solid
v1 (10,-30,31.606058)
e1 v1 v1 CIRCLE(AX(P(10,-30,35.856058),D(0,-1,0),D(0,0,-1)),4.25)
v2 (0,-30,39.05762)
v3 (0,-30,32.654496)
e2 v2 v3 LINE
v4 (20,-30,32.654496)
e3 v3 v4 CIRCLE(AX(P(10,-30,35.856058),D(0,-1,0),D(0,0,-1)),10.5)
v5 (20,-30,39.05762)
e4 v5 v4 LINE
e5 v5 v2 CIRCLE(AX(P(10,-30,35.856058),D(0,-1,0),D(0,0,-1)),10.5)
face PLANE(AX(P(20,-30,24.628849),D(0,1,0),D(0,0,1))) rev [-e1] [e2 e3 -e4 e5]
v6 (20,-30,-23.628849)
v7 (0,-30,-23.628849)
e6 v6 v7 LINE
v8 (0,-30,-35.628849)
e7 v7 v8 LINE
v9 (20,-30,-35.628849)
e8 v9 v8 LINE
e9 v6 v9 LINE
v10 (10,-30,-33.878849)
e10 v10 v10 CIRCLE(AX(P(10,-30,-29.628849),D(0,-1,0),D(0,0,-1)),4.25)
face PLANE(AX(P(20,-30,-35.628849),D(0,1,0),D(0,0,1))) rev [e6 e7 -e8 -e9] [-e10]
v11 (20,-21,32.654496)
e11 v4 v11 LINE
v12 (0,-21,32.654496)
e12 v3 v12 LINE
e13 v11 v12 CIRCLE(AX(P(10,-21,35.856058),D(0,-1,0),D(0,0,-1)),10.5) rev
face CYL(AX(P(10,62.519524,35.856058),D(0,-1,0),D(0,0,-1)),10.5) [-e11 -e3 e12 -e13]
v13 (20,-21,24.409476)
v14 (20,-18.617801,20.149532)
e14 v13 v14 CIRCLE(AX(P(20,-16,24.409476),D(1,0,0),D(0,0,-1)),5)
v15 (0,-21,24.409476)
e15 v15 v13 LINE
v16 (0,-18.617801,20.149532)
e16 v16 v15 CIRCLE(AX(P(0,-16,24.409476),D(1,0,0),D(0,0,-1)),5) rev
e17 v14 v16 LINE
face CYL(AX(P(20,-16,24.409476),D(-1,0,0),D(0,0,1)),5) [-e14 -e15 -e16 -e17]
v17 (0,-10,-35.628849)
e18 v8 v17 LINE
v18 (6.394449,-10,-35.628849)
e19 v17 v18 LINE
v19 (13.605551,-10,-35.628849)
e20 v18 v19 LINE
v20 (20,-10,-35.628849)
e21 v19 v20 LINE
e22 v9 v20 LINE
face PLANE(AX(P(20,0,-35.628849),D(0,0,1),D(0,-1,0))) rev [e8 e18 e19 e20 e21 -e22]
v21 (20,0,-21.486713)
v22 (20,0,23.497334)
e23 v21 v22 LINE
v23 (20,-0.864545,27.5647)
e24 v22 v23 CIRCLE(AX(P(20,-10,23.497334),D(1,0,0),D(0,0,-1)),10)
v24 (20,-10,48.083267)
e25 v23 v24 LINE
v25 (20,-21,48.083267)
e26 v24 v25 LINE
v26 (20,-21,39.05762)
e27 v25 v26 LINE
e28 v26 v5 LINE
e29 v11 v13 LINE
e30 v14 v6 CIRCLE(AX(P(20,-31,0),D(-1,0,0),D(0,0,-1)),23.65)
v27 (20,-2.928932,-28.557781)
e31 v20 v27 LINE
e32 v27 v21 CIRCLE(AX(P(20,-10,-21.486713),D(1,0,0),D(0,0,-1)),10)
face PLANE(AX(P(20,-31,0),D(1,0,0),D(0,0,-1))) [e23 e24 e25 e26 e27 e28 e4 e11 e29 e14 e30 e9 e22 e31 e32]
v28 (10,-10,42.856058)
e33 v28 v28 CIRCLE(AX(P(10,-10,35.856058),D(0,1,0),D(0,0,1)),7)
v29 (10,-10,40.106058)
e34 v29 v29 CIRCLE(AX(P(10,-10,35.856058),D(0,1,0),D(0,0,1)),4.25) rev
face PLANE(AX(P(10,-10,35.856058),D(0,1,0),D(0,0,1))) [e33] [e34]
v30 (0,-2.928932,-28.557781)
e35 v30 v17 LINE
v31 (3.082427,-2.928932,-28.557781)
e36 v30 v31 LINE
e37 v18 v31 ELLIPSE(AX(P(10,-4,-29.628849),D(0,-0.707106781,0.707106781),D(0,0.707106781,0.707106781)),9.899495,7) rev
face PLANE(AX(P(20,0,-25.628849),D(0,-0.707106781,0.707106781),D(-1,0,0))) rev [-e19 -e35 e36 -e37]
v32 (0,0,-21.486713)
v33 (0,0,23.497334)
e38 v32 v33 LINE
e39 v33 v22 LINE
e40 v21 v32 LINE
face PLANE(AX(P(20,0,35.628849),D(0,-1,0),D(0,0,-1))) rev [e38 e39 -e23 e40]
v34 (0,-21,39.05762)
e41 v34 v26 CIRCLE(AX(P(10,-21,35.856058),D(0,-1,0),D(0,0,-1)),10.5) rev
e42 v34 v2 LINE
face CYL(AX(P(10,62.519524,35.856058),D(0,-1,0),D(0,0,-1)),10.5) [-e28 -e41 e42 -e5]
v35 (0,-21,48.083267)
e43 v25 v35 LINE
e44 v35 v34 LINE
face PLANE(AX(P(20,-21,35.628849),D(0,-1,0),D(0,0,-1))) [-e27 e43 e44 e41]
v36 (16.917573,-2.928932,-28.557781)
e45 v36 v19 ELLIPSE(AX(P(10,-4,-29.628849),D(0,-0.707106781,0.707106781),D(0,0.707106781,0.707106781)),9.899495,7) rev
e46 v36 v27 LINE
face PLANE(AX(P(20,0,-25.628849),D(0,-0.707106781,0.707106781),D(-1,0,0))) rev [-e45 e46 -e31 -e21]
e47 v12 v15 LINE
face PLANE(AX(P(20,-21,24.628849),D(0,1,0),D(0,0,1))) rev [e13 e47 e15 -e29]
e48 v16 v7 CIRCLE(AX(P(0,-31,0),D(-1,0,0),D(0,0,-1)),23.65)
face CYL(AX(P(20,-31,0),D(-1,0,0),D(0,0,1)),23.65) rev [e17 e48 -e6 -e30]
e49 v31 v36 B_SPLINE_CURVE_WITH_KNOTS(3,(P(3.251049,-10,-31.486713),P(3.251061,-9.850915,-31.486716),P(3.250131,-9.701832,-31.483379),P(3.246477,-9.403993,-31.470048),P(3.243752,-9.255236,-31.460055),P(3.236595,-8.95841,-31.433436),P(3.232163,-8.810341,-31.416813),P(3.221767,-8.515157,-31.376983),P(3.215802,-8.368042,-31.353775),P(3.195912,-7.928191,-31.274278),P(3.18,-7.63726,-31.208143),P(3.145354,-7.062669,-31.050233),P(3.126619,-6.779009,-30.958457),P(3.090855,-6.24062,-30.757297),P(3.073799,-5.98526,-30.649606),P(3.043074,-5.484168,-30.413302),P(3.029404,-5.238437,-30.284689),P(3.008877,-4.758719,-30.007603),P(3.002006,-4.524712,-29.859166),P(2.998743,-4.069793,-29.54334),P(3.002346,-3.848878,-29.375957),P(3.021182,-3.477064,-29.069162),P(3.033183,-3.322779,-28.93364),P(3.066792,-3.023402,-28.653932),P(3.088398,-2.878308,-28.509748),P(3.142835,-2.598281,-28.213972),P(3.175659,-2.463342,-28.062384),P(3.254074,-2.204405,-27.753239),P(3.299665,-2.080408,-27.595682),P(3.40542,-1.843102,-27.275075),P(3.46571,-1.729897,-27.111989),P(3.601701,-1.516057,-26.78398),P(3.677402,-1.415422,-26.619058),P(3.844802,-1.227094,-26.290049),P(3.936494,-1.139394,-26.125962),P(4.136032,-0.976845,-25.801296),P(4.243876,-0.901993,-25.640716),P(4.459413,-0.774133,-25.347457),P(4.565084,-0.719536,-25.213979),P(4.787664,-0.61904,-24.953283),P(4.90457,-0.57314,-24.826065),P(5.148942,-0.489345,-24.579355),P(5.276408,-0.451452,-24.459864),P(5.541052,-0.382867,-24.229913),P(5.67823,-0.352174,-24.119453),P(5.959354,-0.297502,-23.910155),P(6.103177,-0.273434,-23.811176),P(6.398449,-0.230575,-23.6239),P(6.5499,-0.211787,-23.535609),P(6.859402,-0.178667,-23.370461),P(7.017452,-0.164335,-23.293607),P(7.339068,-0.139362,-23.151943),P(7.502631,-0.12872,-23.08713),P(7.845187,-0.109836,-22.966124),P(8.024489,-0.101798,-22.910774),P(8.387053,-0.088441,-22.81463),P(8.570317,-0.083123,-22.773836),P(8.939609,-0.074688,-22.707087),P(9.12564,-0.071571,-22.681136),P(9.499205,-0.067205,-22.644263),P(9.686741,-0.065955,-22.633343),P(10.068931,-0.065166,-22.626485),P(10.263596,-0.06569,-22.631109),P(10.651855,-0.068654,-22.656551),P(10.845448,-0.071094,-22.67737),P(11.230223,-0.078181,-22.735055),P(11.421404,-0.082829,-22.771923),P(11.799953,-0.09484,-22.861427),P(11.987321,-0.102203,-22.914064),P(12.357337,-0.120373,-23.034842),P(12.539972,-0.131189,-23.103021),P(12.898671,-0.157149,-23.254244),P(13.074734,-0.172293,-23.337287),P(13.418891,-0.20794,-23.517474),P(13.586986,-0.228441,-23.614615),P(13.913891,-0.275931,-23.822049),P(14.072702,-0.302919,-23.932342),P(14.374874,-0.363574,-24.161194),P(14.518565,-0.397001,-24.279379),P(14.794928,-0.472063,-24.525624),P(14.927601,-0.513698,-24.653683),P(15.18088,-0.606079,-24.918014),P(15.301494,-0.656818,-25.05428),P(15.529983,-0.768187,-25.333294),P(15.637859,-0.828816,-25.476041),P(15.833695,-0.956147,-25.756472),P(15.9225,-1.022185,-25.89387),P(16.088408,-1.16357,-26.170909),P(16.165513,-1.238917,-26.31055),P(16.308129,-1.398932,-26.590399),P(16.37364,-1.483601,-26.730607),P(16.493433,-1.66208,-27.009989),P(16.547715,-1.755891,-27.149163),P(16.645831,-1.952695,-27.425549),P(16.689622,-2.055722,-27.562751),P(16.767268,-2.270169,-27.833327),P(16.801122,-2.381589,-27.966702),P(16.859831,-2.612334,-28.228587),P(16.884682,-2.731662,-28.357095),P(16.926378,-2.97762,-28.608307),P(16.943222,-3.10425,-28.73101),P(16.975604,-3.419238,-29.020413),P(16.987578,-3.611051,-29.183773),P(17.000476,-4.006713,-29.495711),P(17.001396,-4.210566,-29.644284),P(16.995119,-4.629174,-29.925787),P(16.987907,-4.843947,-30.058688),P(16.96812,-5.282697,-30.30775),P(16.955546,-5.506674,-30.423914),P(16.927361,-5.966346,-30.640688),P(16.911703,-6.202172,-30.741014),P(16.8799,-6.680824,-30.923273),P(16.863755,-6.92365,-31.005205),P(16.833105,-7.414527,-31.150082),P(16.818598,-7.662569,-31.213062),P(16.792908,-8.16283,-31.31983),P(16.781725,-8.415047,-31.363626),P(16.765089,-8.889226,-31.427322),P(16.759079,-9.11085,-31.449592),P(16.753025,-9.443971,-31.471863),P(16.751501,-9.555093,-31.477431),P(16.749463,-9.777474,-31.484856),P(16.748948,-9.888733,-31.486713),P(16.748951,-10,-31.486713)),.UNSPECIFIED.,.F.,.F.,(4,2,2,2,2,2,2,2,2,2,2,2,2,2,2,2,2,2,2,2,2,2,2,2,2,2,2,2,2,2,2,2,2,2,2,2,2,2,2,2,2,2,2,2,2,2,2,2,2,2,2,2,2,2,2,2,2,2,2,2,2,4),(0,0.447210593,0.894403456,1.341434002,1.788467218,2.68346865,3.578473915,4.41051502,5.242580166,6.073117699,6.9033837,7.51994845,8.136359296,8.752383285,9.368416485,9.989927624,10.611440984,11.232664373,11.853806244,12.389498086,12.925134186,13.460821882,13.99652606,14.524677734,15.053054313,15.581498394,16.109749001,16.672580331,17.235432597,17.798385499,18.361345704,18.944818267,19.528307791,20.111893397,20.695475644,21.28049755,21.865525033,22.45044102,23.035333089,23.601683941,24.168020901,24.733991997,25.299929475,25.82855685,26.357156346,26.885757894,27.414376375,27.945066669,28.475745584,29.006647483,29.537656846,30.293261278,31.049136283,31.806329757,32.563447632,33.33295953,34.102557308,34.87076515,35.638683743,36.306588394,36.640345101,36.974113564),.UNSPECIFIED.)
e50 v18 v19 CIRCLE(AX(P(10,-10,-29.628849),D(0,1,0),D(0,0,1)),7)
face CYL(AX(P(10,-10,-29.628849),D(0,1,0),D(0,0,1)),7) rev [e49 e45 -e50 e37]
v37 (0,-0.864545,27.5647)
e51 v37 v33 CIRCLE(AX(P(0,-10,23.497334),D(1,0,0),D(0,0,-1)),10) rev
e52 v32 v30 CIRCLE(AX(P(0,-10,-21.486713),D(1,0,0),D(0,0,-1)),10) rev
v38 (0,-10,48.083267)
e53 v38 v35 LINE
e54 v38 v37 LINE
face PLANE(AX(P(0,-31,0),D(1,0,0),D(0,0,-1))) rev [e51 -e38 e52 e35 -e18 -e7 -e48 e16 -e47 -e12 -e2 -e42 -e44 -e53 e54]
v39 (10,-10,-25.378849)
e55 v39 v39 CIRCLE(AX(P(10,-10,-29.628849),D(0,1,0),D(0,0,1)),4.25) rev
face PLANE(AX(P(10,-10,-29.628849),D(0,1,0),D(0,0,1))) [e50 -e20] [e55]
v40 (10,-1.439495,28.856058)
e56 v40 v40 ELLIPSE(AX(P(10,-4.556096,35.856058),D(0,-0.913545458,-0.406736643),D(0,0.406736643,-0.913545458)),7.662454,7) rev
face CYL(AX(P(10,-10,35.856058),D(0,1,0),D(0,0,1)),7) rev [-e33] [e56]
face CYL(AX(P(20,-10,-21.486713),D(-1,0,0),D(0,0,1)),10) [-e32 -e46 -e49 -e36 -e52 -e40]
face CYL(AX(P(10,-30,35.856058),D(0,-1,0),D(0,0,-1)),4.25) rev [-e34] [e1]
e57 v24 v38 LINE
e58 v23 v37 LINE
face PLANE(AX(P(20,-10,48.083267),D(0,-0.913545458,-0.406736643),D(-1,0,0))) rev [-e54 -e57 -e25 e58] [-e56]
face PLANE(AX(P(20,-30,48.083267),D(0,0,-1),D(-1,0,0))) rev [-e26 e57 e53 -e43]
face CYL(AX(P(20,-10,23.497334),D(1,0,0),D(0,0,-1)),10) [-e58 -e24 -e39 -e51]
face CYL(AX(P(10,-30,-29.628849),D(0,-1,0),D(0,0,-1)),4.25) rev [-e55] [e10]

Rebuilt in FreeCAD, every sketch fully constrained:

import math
import FreeCAD as App
import Part
import Sketcher


def edges_at(feature, points):
    """Names of the edges that pass closest to the given points."""
    edges = feature.Shape.Edges
    near = lambda p: min(range(len(edges)), key=lambda i: edges[i].distToShape(Part.Vertex(*p))[0])
    return sorted({f"Edge{near(p) + 1}" for p in points})

doc = App.newDocument("Part")
body = doc.addObject("PartDesign::Body", "Body")

# Sketch on YZ plane
sketch1 = body.newObject("Sketcher::SketchObject", "Sketch")
sketch1.AttachmentSupport = (doc.getObject("YZ_Plane"), [""])
sketch1.MapMode = "FlatFace"
sketch1.addGeometry([
    Part.LineSegment(App.Vector(-30, -35.628849, 0), App.Vector(0, -35.628849, 0)),  # 0
    Part.LineSegment(App.Vector(0, -35.628849, 0), App.Vector(0, 48.083267, 0)),  # 1
    Part.LineSegment(App.Vector(0, 48.083267, 0), App.Vector(-30, 48.083267, 0)),  # 2
    Part.LineSegment(App.Vector(-30, 48.083267, 0), App.Vector(-30, 24.628849, 0)),  # 3
    Part.LineSegment(App.Vector(-30, 24.628849, 0), App.Vector(-21, 24.628849, 0)),  # 4
    Part.LineSegment(App.Vector(-21, 24.628849, 0), App.Vector(-21, 21.43181, 0)),  # 5
    Part.ArcOfCircle(Part.Circle(App.Vector(-31, 0, 0), App.Vector(0, 0, 1), 23.65), math.radians(-87.576623), math.radians(64.986425)),  # 6
    Part.LineSegment(App.Vector(-30, -23.628849, 0), App.Vector(-30, -35.628849, 0)),  # 7
], False)
sketch1.addConstraint([
    Sketcher.Constraint("Coincident", 0, 2, 1, 1),
    Sketcher.Constraint("Coincident", 1, 2, 2, 1),
    Sketcher.Constraint("Coincident", 2, 2, 3, 1),
    Sketcher.Constraint("Coincident", 3, 2, 4, 1),
    Sketcher.Constraint("Coincident", 4, 2, 5, 1),
    Sketcher.Constraint("Coincident", 5, 2, 6, 2),
    Sketcher.Constraint("Coincident", 6, 1, 7, 1),
    Sketcher.Constraint("Coincident", 7, 2, 0, 1),
    Sketcher.Constraint("Horizontal", 0),
    Sketcher.Constraint("Vertical", 1),
    Sketcher.Constraint("Horizontal", 2),
    Sketcher.Constraint("Vertical", 3),
    Sketcher.Constraint("Horizontal", 4),
    Sketcher.Constraint("Vertical", 5),
    Sketcher.Constraint("Vertical", 7),
    Sketcher.Constraint("PointOnObject", 6, 3, -1),
    Sketcher.Constraint("PointOnObject", 0, 2, -2),
    Sketcher.Constraint("Vertical", 3, 2, 6, 1),
    Sketcher.Constraint("DistanceX", 0, 1, 0, 2, 30.0),
    Sketcher.Constraint("DistanceX", 4, 1, 4, 2, 9.0),
    Sketcher.Constraint("DistanceY", 7, 2, 7, 1, 12.0),
    Sketcher.Constraint("Radius", 6, 23.65),
    Sketcher.Constraint("DistanceX", 6, 3, -1, 1, 31.0),
    Sketcher.Constraint("DistanceY", 3, 2, 3, 1, 23.454418),
    Sketcher.Constraint("DistanceY", 5, 2, 5, 1, 3.197038),
])
pad1 = body.newObject("PartDesign::Pad", "Pad")
pad1.Profile = sketch1
pad1.Length = 20
doc.recompute()

chamfer = body.newObject("PartDesign::Chamfer", "Chamfer")
chamfer.Base = (pad1, edges_at(pad1, [(10, 0, -35.629)]))
chamfer.Size = 10
doc.recompute()

chamfer2 = body.newObject("PartDesign::Chamfer", "Chamfer001")
chamfer2.Base = (chamfer, edges_at(chamfer, [(10, 0, 48.083)]))
chamfer2.ChamferType = "Two distances"
chamfer2.Size = 10
chamfer2.Size2 = 22.460368
chamfer2.FlipDirection = True
doc.recompute()

fillet = body.newObject("PartDesign::Fillet", "Fillet")
fillet.Base = (chamfer2, edges_at(chamfer2, [(10, 0, -25.629), (10, 0, 25.623)]))
fillet.Radius = 10
doc.recompute()

fillet2 = body.newObject("PartDesign::Fillet", "Fillet001")
fillet2.Base = (fillet, edges_at(fillet, [(10, -21, 21.432)]))
fillet2.Radius = 5

# Sketch on XZ plane
sketch2 = body.newObject("Sketcher::SketchObject", "Sketch001")
sketch2.AttachmentSupport = (doc.getObject("XZ_Plane"), [""])
sketch2.MapMode = "FlatFace"
sketch2.AttachmentOffset = App.Placement(App.Vector(0, 0, 30), App.Rotation())
sketch2.addGeometry([
    Part.Circle(App.Vector(10, 35.856058, 0), App.Vector(0, 0, 1), 4.25),
    Part.Circle(App.Vector(10, -29.628849, 0), App.Vector(0, 0, 1), 4.25),
], False)
sketch2.addConstraint([
    Sketcher.Constraint("Equal", 0, 1),
    Sketcher.Constraint("Vertical", 0, 3, 1, 3),
    Sketcher.Constraint("Diameter", 0, 8.5),
    Sketcher.Constraint("DistanceX", -1, 1, 0, 3, 10.0),
    Sketcher.Constraint("DistanceY", -1, 1, 0, 3, 35.856058),
    Sketcher.Constraint("DistanceY", 1, 3, -1, 1, 29.628849),
])
doc.recompute()
hole = body.newObject("PartDesign::Hole", "Hole")
hole.Profile = sketch2
hole.ThreadType = "None"
hole.Diameter = 8.5
hole.DepthType = "ThroughAll"

# Sketch on XZ plane
sketch3 = body.newObject("Sketcher::SketchObject", "Sketch002")
sketch3.AttachmentSupport = (doc.getObject("XZ_Plane"), [""])
sketch3.MapMode = "FlatFace"
sketch3.addGeometry([
    Part.Circle(App.Vector(10, 35.856058, 0), App.Vector(0, 0, 1), 7),
    Part.Circle(App.Vector(10, -29.628849, 0), App.Vector(0, 0, 1), 7),
], False)
sketch3.addConstraint([
    Sketcher.Constraint("Equal", 0, 1),
    Sketcher.Constraint("Vertical", 0, 3, 1, 3),
    Sketcher.Constraint("Diameter", 0, 14.0),
    Sketcher.Constraint("DistanceX", -1, 1, 0, 3, 10.0),
    Sketcher.Constraint("DistanceY", -1, 1, 0, 3, 35.856058),
    Sketcher.Constraint("DistanceY", 1, 3, -1, 1, 29.628849),
])
pocket1 = body.newObject("PartDesign::Pocket", "Pocket")
pocket1.Profile = sketch3
pocket1.Length = 10
pocket1.Reversed = True

# Sketch on XZ plane
sketch4 = body.newObject("Sketcher::SketchObject", "Sketch003")
sketch4.AttachmentSupport = (doc.getObject("XZ_Plane"), [""])
sketch4.MapMode = "FlatFace"
sketch4.AttachmentOffset = App.Placement(App.Vector(0, 0, 30), App.Rotation())
sketch4.addGeometry([
    Part.Circle(App.Vector(10, 35.856058, 0), App.Vector(0, 0, 1), 22.10399),
    Part.Circle(App.Vector(10, 35.856058, 0), App.Vector(0, 0, 1), 10.5),
], False)
sketch4.addConstraint([
    Sketcher.Constraint("Coincident", 1, 3, 0, 3),
    Sketcher.Constraint("Diameter", 1, 21.0),
    Sketcher.Constraint("DistanceX", -1, 1, 0, 3, 10.0),
    Sketcher.Constraint("Diameter", 0, 44.207979),
    Sketcher.Constraint("DistanceY", -1, 1, 0, 3, 35.856058),
])
pocket2 = body.newObject("PartDesign::Pocket", "Pocket001")
pocket2.Profile = sketch4
pocket2.Length = 9

doc.recompute()
